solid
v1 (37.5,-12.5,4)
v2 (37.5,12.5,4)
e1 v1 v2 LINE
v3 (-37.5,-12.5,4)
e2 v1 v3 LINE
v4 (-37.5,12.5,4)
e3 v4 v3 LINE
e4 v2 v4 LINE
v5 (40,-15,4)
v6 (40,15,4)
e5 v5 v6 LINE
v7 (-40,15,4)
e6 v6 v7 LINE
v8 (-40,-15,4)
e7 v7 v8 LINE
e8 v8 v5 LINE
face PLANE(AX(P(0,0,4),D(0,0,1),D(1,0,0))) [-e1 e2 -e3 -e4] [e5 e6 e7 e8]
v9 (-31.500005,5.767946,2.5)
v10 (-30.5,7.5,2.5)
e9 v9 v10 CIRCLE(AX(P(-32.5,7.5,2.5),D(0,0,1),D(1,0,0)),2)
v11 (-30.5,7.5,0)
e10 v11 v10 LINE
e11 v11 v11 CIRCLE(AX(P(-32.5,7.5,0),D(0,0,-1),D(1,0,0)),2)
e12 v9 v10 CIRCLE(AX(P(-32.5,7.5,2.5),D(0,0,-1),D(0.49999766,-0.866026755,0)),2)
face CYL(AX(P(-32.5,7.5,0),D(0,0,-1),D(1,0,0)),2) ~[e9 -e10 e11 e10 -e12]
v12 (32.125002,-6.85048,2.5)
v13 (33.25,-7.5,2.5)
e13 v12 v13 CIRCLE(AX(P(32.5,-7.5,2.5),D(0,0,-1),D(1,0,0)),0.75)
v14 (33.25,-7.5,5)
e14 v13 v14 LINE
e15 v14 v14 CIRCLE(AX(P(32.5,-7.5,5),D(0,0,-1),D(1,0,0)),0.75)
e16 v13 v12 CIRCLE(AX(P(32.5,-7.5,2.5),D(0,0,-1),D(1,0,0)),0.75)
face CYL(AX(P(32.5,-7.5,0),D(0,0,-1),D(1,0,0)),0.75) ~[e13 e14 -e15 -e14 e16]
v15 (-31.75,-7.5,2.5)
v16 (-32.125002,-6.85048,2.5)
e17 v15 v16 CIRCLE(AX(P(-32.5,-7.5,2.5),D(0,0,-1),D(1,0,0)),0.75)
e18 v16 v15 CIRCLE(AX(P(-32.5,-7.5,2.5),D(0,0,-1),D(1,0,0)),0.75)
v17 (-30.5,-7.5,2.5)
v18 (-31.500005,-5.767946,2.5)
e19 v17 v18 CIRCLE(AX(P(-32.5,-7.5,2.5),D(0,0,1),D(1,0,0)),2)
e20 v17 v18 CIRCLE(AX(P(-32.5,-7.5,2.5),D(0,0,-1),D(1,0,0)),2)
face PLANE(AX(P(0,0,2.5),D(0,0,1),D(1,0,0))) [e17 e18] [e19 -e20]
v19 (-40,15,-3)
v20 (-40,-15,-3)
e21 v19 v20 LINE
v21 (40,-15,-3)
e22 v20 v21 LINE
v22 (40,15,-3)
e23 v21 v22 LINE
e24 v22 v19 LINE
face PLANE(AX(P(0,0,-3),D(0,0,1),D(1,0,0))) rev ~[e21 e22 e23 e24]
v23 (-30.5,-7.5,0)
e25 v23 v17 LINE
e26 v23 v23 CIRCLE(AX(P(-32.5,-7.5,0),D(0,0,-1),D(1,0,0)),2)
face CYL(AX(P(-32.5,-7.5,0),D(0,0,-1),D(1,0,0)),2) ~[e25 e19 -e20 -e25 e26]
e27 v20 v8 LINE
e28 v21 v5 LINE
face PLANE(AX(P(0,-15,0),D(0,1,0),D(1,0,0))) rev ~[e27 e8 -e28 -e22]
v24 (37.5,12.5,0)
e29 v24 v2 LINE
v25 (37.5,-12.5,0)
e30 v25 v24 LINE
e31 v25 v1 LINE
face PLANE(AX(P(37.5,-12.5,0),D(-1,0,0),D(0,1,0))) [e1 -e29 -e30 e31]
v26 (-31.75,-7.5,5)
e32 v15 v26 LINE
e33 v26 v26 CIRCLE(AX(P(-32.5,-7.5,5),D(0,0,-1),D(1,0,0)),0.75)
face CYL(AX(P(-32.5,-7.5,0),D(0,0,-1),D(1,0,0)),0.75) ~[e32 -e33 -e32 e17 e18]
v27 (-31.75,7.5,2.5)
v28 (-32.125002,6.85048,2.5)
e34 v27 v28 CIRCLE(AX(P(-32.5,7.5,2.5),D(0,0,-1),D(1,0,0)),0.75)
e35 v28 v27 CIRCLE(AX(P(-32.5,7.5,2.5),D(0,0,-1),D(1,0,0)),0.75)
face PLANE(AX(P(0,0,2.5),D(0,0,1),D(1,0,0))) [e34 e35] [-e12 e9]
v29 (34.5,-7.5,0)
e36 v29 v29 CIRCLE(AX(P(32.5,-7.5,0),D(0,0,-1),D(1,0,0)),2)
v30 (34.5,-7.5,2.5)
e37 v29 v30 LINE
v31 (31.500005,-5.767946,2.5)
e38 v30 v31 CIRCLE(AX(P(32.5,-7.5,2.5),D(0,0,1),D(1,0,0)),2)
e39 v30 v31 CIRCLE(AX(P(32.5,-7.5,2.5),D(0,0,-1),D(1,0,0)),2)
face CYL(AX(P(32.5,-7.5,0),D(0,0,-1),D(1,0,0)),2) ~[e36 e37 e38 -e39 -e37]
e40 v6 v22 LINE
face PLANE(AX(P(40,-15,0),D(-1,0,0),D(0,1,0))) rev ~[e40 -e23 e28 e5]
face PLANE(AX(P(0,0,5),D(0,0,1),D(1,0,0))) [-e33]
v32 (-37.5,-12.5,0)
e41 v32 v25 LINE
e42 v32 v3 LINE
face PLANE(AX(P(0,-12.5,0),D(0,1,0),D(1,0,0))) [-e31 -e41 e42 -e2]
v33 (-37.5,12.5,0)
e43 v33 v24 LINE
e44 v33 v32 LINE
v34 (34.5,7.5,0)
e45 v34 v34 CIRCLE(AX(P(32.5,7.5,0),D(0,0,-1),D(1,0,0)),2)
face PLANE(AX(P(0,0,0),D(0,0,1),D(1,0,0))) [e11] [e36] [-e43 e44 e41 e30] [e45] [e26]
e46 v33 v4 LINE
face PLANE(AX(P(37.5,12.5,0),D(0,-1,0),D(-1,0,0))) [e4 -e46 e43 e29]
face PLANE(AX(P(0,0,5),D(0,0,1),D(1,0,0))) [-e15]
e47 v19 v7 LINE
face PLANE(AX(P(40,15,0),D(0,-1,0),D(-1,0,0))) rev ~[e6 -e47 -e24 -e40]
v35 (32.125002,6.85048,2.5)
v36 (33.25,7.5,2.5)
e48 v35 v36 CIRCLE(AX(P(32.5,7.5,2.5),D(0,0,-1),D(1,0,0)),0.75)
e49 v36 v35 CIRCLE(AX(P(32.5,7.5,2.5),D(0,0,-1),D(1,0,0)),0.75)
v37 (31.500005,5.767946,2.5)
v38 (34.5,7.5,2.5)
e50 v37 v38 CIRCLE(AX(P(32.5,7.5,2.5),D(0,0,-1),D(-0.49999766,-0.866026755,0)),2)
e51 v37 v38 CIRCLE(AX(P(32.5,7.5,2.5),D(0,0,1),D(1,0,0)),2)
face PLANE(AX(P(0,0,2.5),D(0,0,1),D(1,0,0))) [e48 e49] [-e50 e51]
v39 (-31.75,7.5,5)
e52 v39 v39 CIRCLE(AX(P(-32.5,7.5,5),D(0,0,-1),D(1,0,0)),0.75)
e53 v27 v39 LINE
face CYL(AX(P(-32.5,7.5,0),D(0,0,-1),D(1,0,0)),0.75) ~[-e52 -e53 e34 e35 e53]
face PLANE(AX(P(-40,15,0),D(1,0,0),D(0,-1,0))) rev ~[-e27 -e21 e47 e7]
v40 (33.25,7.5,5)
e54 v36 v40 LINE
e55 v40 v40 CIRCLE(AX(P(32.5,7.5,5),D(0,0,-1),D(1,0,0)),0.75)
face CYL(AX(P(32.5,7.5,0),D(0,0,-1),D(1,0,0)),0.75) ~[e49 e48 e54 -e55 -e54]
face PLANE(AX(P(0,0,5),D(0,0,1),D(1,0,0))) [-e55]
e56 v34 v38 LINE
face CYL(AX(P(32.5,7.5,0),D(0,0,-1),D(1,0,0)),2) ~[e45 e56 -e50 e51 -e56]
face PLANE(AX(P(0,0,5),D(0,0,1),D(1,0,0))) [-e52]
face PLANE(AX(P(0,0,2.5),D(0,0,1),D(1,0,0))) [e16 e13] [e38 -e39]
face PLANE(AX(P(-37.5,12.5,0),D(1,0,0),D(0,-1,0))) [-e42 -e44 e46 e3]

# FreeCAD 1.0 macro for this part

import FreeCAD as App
import Part
import Sketcher

V = App.Vector
Q = App.Units.Quantity


def add_polygon(sketch, points):
    """Adds a closed chain of lines whose ends are joined by coincident constraints."""
    first, n = sketch.GeometryCount, len(points)
    for a, b in zip(points, points[1:] + points[:1]):
        sketch.addGeometry(Part.LineSegment(App.Vector(*a, 0), App.Vector(*b, 0)), False)
    for i in range(n):
        sketch.addConstraint(Sketcher.Constraint("Coincident", first + i, 2, first + (i + 1) % n, 1))

doc = App.newDocument("Part")
body = doc.addObject("PartDesign::Body", "Body")

sketch1 = doc.addObject("Sketcher::SketchObject", "Sketch")
body.addObject(sketch1)
sketch1.AttachmentSupport = (doc.XY_Plane, [""])
sketch1.MapMode = "FlatFace"
add_polygon(sketch1, [(40, 15), (-40, 15), (-40, -15), (40, -15)])
sketch1.addConstraint([
    Sketcher.Constraint("Horizontal", 0),
    Sketcher.Constraint("Vertical", 1),
    Sketcher.Constraint("Horizontal", 2),
    Sketcher.Constraint("Vertical", 3),
    Sketcher.Constraint("Symmetric", 0, 2, 2, 2, -1, 1),
    Sketcher.Constraint("DistanceY", 1, 2, 1, 1, Q("30 mm")),
    Sketcher.Constraint("DistanceX", 0, 2, 0, 1, Q("80 mm")),
])
pad1 = doc.addObject("PartDesign::Pad", "Pad")
body.addObject(pad1)
pad1.Profile = sketch1
pad1.Length = 3
pad1.Reversed = True

sketch2 = doc.addObject("Sketcher::SketchObject", "Sketch001")
body.addObject(sketch2)
sketch2.AttachmentSupport = (doc.XY_Plane, [""])
sketch2.MapMode = "FlatFace"
add_polygon(sketch2, [(40, 15), (-40, 15), (-40, -15), (40, -15)])
add_polygon(sketch2, [(38, 12), (38, -12), (-38, -12), (-38, 12)])
sketch2.addConstraint([
    Sketcher.Constraint("Horizontal", 0),
    Sketcher.Constraint("Vertical", 1),
    Sketcher.Constraint("Horizontal", 2),
    Sketcher.Constraint("Vertical", 3),
    Sketcher.Constraint("Vertical", 4),
    Sketcher.Constraint("Horizontal", 5),
    Sketcher.Constraint("Vertical", 6),
    Sketcher.Constraint("Horizontal", 7),
    Sketcher.Constraint("Symmetric", 0, 2, 2, 2, -1, 1),
    Sketcher.Constraint("Symmetric", 4, 2, 6, 2, -1, 1),
    Sketcher.Constraint("DistanceX", 5, 2, 5, 1, Q("75 mm")),
    Sketcher.Constraint("DistanceY", 1, 2, 1, 1, Q("30 mm")),
    Sketcher.Constraint("DistanceY", 4, 2, 4, 1, Q("25 mm")),
    Sketcher.Constraint("DistanceX", 4, 2, 2, 2, Q("2.5 mm")),
])
pad2 = doc.addObject("PartDesign::Pad", "Pad001")
body.addObject(pad2)
pad2.Profile = sketch2
pad2.Length = 4

sketch3 = doc.addObject("Sketcher::SketchObject", "Sketch002")
body.addObject(sketch3)
sketch3.AttachmentSupport = (doc.XY_Plane, [""])
sketch3.MapMode = "FlatFace"
sketch3.addGeometry([
    Part.Circle(V(32.5, 7.5, 0), V(0, 0, 1), 2),
    Part.Circle(V(-32.5, 7.5, 0), V(0, 0, 1), 2),
    Part.Circle(V(-32.5, -7.5, 0), V(0, 0, 1), 2),
    Part.Circle(V(32.5, -7.5, 0), V(0, 0, 1), 2),
], False)
sketch3.addConstraint([
    Sketcher.Constraint("Equal", 0, 1),
    Sketcher.Constraint("Equal", 1, 2),
    Sketcher.Constraint("Equal", 2, 3),
    Sketcher.Constraint("Symmetric", 0, 3, 2, 3, -1, 1),
    Sketcher.Constraint("Symmetric", 1, 3, 3, 3, -1, 1),
    Sketcher.Constraint("Symmetric", 0, 3, 1, 3, -2),
    Sketcher.Constraint("Diameter", 0, Q("4 mm")),
    Sketcher.Constraint("DistanceX", 1, 3, 0, 3, Q("65 mm")),
    Sketcher.Constraint("DistanceY", 2, 3, 1, 3, Q("15 mm")),
])
pad3 = doc.addObject("PartDesign::Pad", "Pad002")
body.addObject(pad3)
pad3.Profile = sketch3
pad3.Length = 2.5

sketch4 = doc.addObject("Sketcher::SketchObject", "Sketch003")
body.addObject(sketch4)
sketch4.AttachmentSupport = (doc.XY_Plane, [""])
sketch4.MapMode = "FlatFace"
sketch4.addGeometry([
    Part.Circle(V(32.5, 7.5, 0), V(0, 0, 1), 0.8),
    Part.Circle(V(-32.5, 7.5, 0), V(0, 0, 1), 0.8),
    Part.Circle(V(-32.5, -7.5, 0), V(0, 0, 1), 0.8),
    Part.Circle(V(32.5, -7.5, 0), V(0, 0, 1), 0.8),
], False)
sketch4.addConstraint([
    Sketcher.Constraint("Equal", 0, 1),
    Sketcher.Constraint("Equal", 1, 2),
    Sketcher.Constraint("Equal", 2, 3),
    Sketcher.Constraint("Symmetric", 0, 3, 2, 3, -1, 1),
    Sketcher.Constraint("Symmetric", 1, 3, 3, 3, -1, 1),
    Sketcher.Constraint("Symmetric", 0, 3, 1, 3, -2),
    Sketcher.Constraint("Diameter", 0, Q("1.5 mm")),
    Sketcher.Constraint("DistanceX", 1, 3, 0, 3, Q("65 mm")),
    Sketcher.Constraint("DistanceY", 2, 3, 1, 3, Q("15 mm")),
])
pad4 = doc.addObject("PartDesign::Pad", "Pad003")
body.addObject(pad4)
pad4.Profile = sketch4
pad4.Length = 5

doc.recompute()
